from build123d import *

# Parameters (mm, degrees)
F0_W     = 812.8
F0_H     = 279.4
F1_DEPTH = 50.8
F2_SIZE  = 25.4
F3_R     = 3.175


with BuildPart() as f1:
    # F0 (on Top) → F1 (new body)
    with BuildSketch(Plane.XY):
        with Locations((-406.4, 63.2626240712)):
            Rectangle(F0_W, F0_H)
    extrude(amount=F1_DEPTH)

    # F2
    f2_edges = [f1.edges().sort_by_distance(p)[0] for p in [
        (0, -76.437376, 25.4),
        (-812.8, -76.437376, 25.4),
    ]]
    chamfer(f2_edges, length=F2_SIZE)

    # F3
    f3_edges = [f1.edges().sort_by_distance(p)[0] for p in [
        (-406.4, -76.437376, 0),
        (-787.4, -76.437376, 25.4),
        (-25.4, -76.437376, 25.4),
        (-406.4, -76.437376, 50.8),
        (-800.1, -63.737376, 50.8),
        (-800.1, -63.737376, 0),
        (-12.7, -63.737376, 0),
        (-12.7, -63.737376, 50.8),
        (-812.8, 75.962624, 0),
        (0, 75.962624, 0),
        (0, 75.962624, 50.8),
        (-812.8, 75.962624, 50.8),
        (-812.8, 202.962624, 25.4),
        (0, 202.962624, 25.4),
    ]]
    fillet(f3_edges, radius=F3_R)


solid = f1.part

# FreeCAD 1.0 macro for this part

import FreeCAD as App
import Part
import Sketcher
Q = App.Units.Quantity


def edges_at(feature, points):
    """Names of the edges that pass closest to the given points."""
    edges = feature.Shape.Edges
    near = lambda p: min(range(len(edges)), key=lambda i: edges[i].distToShape(Part.Vertex(*p))[0])
    return sorted({f"Edge{near(p) + 1}" for p in points})


def add_polygon(sketch, points):
    """Adds a closed chain of lines whose ends are joined by coincident constraints."""
    first, n = sketch.GeometryCount, len(points)
    for a, b in zip(points, points[1:] + points[:1]):
        sketch.addGeometry(Part.LineSegment(App.Vector(*a, 0), App.Vector(*b, 0)), False)
    for i in range(n):
        sketch.addConstraint(Sketcher.Constraint("Coincident", first + i, 2, first + (i + 1) % n, 1))

doc = App.newDocument("Part")
params = doc.addObject("Spreadsheet::Sheet", "Params")
for row, (alias, value) in enumerate([
    ("sketch1_width", "32 in"),
    ("sketch1_height", "11 in"),
    ("pad1_length", "2 in"),
    ("chamfer_size", "1 in"),
    ("fillet_radius", "0.125 in"),
], start=1):
    params.set(f"A{row}", alias)
    params.set(f"B{row}", "=" + value)
    params.setAlias(f"B{row}", alias)

body = doc.addObject("PartDesign::Body", "Body")

sketch1 = doc.addObject("Sketcher::SketchObject", "Sketch")
body.addObject(sketch1)
sketch1.AttachmentSupport = (doc.XY_Plane, [""])
sketch1.MapMode = "FlatFace"
add_polygon(sketch1, [(-813, 203), (-813, -76), (0, -76), (0, 203)])
sketch1.addConstraint(Sketcher.Constraint("Vertical", 0))
sketch1.addConstraint(Sketcher.Constraint("Horizontal", 1))
sketch1.addConstraint(Sketcher.Constraint("Vertical", 2))
sketch1.addConstraint(Sketcher.Constraint("Horizontal", 3))
sketch1.addConstraint(Sketcher.Constraint("PointOnObject", 1, 2, -2))
sketch1.addConstraint(Sketcher.Constraint("DistanceX", 1, 1, 1, 2, Q("32 in")))
sketch1.addConstraint(Sketcher.Constraint("DistanceY", 0, 2, 0, 1, Q("11 in")))
sketch1.addConstraint(Sketcher.Constraint("DistanceY", 0, 2, -1, 1, 76.437376))
sketch1.setExpression("Constraints[9]", "Params.sketch1_width")
sketch1.setExpression("Constraints[10]", "Params.sketch1_height")
pad1 = doc.addObject("PartDesign::Pad", "Pad")
body.addObject(pad1)
pad1.Profile = sketch1
pad1.setExpression("Length", "Params.pad1_length")
doc.recompute()

chamfer = doc.addObject("PartDesign::Chamfer", "Chamfer")
body.addObject(chamfer)
chamfer.Base = (pad1, edges_at(pad1, [(0, -76.437, 25.4), (-812.8, -76.437, 25.4)]))
chamfer.setExpression("Size", "Params.chamfer_size")
doc.recompute()

fillet = doc.addObject("PartDesign::Fillet", "Fillet")
body.addObject(fillet)
fillet.Base = (chamfer, edges_at(chamfer, [
    (-406.4, -76.437, 0),
    (-787.4, -76.437, 25.4),
    (-25.4, -76.437, 25.4),
    (-406.4, -76.437, 50.8),
    (-800.1, -63.737, 50.8),
    (-800.1, -63.737, 0),
    (-12.7, -63.737, 0),
    (-12.7, -63.737, 50.8),
    (-812.8, 75.963, 0),
    (0, 75.963, 0),
    (0, 75.963, 50.8),
    (-812.8, 75.963, 50.8),
    (-812.8, 202.963, 25.4),
    (0, 202.963, 25.4),
]))
fillet.setExpression("Radius", "Params.fillet_radius")

doc.recompute()
